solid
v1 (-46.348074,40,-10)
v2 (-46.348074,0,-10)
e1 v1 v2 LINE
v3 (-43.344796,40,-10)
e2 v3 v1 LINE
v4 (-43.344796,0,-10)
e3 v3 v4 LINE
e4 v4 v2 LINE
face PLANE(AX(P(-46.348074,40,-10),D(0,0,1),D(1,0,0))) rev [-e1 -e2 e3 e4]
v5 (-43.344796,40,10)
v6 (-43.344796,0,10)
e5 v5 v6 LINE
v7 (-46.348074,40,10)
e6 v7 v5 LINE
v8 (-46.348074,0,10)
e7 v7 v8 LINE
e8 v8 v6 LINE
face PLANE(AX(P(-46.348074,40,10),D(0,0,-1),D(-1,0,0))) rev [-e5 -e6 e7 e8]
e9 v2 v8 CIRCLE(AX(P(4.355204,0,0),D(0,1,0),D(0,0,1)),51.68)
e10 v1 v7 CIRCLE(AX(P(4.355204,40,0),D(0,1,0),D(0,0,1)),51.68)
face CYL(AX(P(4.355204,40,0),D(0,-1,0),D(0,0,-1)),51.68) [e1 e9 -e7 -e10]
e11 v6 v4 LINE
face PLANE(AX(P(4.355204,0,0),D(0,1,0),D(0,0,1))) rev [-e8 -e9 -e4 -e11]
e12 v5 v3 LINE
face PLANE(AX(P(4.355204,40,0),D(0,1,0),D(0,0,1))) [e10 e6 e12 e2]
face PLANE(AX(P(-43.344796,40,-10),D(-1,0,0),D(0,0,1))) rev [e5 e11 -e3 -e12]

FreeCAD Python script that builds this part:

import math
import FreeCAD as App
import Part
import Sketcher
Q = App.Units.Quantity

doc = App.newDocument("Part")
body = doc.addObject("PartDesign::Body", "Body")

# Sketch on XZ plane
sketch1 = body.newObject("Sketcher::SketchObject", "Sketch")
sketch1.AttachmentSupport = (doc.getObject("XZ_Plane"), [""])
sketch1.MapMode = "FlatFace"
sketch1.addGeometry(Part.LineSegment(App.Vector(-43.3, -10, 0), App.Vector(-46.3, -10, 0)), False)
sketch1.addGeometry(Part.ArcOfCircle(Part.Circle(App.Vector(4.4, 0, 0), App.Vector(0, 0, 1), 51.7), math.radians(169), math.radians(191)), False)
sketch1.addGeometry(Part.LineSegment(App.Vector(-46.3, 10, 0), App.Vector(-43.3, 10, 0)), False)
sketch1.addGeometry(Part.LineSegment(App.Vector(-43.3, 10, 0), App.Vector(-43.3, -10, 0)), False)
sketch1.addConstraint(Sketcher.Constraint("Coincident", 0, 2, 1, 2))
sketch1.addConstraint(Sketcher.Constraint("Coincident", 1, 1, 2, 1))
sketch1.addConstraint(Sketcher.Constraint("Coincident", 2, 2, 3, 1))
sketch1.addConstraint(Sketcher.Constraint("Coincident", 3, 2, 0, 1))
sketch1.addConstraint(Sketcher.Constraint("Horizontal", 0))
sketch1.addConstraint(Sketcher.Constraint("Horizontal", 2))
sketch1.addConstraint(Sketcher.Constraint("Vertical", 3))
sketch1.addConstraint(Sketcher.Constraint("Symmetric", 0, 2, 1, 1, -1))
sketch1.addConstraint(Sketcher.Constraint("DistanceY", 3, 2, 3, 1, Q("20 mm")))
sketch1.addConstraint(Sketcher.Constraint("Radius", 1, Q("51.68 mm")))
sketch1.addConstraint(Sketcher.Constraint("DistanceX", 2, 2, 1, 3, Q("47.7 mm")))
sketch1.addConstraint(Sketcher.Constraint("DistanceX", -1, 1, 1, 3, Q("4.355204 mm")))
pad1 = body.newObject("PartDesign::Pad", "Pad")
pad1.Profile = sketch1
pad1.Length = 40
pad1.Reversed = True

doc.recompute()
